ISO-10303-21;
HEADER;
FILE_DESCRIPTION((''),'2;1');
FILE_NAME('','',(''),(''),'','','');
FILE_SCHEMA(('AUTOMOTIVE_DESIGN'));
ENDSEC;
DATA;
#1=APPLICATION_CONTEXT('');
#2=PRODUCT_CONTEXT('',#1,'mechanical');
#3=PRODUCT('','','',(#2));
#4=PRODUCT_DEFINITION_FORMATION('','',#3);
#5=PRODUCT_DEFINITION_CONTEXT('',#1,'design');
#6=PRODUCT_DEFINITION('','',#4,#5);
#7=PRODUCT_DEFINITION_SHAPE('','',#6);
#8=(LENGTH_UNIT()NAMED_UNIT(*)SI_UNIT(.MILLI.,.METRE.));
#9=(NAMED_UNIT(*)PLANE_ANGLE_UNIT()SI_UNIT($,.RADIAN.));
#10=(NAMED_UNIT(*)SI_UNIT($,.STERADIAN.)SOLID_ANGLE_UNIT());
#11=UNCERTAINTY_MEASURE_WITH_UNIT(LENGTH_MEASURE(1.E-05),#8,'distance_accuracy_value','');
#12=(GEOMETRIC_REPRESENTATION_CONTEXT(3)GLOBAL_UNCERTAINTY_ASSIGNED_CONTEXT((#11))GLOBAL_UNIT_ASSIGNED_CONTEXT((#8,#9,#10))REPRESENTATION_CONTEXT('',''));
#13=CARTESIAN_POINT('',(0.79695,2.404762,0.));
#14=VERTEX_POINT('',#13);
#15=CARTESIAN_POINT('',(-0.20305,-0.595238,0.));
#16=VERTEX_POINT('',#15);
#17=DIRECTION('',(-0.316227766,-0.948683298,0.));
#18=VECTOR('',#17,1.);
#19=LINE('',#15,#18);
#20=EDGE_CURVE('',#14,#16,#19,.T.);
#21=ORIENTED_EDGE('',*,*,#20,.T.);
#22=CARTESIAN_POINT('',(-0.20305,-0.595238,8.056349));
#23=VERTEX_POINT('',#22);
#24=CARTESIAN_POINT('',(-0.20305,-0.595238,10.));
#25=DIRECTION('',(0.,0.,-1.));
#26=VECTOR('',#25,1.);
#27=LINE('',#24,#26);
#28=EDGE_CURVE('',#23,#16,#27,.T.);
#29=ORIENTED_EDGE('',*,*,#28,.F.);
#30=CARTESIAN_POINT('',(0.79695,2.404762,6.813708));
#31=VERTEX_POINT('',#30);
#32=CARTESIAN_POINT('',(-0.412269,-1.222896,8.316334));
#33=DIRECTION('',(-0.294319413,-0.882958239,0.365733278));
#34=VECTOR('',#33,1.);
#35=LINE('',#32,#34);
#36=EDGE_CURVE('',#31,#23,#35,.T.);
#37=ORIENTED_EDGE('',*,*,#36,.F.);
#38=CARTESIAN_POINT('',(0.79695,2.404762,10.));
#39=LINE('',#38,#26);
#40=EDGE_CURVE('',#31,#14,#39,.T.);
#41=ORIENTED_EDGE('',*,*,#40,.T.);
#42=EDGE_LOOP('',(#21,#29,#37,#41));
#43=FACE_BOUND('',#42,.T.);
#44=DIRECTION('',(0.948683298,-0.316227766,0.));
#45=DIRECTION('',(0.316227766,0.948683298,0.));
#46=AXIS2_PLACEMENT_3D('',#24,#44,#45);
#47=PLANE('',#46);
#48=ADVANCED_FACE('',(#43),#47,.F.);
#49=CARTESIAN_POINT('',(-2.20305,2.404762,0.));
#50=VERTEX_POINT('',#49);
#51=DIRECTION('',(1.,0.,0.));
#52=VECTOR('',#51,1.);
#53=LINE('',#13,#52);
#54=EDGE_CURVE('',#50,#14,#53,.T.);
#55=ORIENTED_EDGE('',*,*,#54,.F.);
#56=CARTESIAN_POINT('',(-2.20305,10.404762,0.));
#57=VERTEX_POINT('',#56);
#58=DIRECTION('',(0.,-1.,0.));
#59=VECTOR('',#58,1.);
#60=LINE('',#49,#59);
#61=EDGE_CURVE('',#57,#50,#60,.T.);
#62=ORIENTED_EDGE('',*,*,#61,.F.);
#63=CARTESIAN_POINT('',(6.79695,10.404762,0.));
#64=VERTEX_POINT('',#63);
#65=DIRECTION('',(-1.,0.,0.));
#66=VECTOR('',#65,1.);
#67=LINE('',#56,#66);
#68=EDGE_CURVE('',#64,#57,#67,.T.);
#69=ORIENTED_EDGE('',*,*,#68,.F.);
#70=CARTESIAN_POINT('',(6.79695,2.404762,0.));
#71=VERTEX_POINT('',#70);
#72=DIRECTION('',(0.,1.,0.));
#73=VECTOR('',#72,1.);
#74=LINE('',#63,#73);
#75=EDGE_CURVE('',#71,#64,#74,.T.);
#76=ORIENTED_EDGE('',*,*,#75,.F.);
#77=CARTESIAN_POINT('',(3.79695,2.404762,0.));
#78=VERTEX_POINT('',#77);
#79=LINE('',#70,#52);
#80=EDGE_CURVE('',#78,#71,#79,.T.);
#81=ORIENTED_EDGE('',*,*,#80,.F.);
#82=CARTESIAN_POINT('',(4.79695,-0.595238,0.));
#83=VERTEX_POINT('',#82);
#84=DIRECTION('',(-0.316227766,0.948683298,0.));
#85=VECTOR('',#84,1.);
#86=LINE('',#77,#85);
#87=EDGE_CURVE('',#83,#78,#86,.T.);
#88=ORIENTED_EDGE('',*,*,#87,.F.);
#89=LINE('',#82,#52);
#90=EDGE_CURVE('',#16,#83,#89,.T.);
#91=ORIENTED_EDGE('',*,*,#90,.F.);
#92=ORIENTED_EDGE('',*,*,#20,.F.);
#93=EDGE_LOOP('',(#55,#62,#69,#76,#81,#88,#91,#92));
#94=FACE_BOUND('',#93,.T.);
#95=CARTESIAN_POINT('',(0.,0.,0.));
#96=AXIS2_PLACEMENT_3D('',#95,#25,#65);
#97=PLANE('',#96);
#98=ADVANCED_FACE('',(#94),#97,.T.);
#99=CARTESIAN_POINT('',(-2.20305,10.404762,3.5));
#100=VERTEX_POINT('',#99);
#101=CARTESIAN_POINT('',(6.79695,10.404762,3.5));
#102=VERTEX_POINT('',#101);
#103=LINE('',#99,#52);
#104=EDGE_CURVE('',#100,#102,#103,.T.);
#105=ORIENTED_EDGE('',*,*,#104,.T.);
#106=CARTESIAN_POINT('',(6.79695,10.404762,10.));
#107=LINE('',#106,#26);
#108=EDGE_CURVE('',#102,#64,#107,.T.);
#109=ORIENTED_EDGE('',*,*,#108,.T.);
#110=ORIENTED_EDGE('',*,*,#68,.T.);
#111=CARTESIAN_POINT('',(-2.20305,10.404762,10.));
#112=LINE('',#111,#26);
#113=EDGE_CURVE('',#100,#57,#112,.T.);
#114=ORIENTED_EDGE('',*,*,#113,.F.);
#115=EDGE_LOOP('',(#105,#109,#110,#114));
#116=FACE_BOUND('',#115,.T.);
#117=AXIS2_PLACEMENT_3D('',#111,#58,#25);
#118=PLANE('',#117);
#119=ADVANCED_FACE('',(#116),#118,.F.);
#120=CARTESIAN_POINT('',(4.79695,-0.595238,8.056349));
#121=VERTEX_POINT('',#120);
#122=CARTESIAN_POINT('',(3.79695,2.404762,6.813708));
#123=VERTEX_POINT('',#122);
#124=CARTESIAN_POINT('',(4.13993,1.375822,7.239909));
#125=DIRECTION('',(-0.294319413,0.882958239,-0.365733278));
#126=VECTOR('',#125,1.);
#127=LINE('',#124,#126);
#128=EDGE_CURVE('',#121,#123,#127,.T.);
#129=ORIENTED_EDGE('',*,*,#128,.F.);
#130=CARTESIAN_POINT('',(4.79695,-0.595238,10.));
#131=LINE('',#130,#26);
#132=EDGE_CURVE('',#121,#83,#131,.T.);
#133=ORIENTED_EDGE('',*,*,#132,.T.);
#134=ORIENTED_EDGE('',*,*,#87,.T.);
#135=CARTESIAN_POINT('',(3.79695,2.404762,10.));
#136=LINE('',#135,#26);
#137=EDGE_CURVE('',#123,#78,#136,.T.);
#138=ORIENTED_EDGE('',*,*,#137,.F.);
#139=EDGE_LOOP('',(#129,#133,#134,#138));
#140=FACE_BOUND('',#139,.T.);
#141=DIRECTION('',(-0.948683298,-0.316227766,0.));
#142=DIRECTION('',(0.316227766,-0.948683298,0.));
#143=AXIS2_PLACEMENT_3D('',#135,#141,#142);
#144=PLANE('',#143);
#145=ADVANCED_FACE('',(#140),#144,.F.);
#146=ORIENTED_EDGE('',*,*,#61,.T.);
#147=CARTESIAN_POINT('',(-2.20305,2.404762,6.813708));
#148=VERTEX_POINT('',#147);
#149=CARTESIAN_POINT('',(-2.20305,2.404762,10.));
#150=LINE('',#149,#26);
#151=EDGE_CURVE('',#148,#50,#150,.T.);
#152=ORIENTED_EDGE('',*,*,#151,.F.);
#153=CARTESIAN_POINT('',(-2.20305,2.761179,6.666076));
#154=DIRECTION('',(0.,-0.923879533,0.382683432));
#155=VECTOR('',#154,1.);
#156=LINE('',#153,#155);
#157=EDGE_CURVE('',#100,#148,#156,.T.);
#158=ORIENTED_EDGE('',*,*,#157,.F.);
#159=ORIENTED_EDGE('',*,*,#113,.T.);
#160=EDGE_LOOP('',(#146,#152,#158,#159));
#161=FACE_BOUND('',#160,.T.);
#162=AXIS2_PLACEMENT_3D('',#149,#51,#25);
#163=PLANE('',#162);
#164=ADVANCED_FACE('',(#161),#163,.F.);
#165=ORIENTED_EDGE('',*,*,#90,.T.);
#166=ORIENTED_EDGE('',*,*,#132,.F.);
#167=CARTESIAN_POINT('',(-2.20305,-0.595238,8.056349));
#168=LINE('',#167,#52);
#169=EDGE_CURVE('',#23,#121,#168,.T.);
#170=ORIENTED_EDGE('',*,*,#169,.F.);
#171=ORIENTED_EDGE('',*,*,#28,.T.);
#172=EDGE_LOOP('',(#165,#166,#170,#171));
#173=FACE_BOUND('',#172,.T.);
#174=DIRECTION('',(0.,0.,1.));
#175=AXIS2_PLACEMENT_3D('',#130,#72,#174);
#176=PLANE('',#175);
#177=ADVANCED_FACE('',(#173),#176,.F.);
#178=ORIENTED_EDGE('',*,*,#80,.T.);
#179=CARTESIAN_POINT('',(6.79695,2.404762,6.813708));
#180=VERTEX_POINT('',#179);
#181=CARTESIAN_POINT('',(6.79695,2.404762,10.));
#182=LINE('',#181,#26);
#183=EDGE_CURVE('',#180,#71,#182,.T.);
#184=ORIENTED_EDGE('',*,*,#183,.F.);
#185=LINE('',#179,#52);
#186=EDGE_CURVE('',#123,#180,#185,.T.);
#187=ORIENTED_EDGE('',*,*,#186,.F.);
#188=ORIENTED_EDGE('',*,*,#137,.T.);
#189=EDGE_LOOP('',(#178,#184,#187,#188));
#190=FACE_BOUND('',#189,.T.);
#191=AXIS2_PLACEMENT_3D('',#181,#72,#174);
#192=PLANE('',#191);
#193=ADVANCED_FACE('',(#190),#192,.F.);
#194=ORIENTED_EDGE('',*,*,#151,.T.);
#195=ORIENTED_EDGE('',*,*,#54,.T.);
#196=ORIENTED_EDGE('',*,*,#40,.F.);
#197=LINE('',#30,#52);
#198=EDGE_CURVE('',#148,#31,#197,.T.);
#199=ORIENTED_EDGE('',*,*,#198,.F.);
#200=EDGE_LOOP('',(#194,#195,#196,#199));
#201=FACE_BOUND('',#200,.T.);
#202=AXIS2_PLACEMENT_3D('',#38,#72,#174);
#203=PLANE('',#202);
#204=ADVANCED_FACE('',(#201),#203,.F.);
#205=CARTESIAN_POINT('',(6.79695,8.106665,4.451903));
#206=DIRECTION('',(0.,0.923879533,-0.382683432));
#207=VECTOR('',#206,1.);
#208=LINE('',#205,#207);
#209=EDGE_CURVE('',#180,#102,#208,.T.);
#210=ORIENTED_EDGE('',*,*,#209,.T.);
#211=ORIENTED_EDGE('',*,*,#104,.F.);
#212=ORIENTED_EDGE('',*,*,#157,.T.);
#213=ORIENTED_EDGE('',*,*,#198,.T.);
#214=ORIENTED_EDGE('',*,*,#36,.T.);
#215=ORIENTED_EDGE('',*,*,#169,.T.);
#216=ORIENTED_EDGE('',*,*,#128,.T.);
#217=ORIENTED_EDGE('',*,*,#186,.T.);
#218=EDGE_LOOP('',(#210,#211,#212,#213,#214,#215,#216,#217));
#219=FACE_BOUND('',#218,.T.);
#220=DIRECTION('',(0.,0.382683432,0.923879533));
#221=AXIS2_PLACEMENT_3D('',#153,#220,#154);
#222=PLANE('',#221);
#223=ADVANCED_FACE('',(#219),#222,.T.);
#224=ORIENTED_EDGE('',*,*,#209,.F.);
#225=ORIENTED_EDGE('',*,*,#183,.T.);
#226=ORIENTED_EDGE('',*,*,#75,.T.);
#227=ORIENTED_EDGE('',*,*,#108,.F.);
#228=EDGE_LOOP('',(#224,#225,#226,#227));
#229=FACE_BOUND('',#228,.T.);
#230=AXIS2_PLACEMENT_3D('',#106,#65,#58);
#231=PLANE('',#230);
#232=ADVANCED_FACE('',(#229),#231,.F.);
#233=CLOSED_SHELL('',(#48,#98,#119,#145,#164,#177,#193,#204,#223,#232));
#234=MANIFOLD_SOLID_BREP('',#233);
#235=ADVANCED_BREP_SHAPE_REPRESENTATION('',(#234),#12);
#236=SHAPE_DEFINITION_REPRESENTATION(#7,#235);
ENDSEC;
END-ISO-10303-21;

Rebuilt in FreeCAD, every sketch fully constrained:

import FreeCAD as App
import Part
import Sketcher
from FreeCAD import Vector
Q = App.Units.Quantity

doc = App.newDocument("Part")
body = doc.addObject("PartDesign::Body", "Body")

# Sketch on XY plane
sketch1 = body.newObject("Sketcher::SketchObject", "Sketch")
sketch1.AttachmentSupport = (doc.getObject("XY_Plane"), [""])
sketch1.MapMode = "FlatFace"
sketch1.addGeometry(Part.LineSegment(Vector(-2.20305, 2.404762, 0), Vector(0.79695, 2.404762, 0)), False)
sketch1.addGeometry(Part.LineSegment(Vector(0.79695, 2.404762, 0), Vector(-0.20305, -0.595238, 0)), False)
sketch1.addGeometry(Part.LineSegment(Vector(-0.20305, -0.595238, 0), Vector(4.79695, -0.595238, 0)), False)
sketch1.addGeometry(Part.LineSegment(Vector(4.79695, -0.595238, 0), Vector(3.79695, 2.404762, 0)), False)
sketch1.addGeometry(Part.LineSegment(Vector(3.79695, 2.404762, 0), Vector(6.79695, 2.404762, 0)), False)
sketch1.addGeometry(Part.LineSegment(Vector(6.79695, 2.404762, 0), Vector(6.79695, 10.404762, 0)), False)
sketch1.addGeometry(Part.LineSegment(Vector(6.79695, 10.404762, 0), Vector(-2.20305, 10.404762, 0)), False)
sketch1.addGeometry(Part.LineSegment(Vector(-2.20305, 10.404762, 0), Vector(-2.20305, 2.404762, 0)), False)
sketch1.addConstraint(Sketcher.Constraint("Coincident", 0, 2, 1, 1))
sketch1.addConstraint(Sketcher.Constraint("Coincident", 1, 2, 2, 1))
sketch1.addConstraint(Sketcher.Constraint("Coincident", 2, 2, 3, 1))
sketch1.addConstraint(Sketcher.Constraint("Coincident", 3, 2, 4, 1))
sketch1.addConstraint(Sketcher.Constraint("Coincident", 4, 2, 5, 1))
sketch1.addConstraint(Sketcher.Constraint("Coincident", 5, 2, 6, 1))
sketch1.addConstraint(Sketcher.Constraint("Coincident", 6, 2, 7, 1))
sketch1.addConstraint(Sketcher.Constraint("Coincident", 7, 2, 0, 1))
sketch1.addConstraint(Sketcher.Constraint("Horizontal", 0))
sketch1.addConstraint(Sketcher.Constraint("Horizontal", 2))
sketch1.addConstraint(Sketcher.Constraint("Horizontal", 4))
sketch1.addConstraint(Sketcher.Constraint("Vertical", 5))
sketch1.addConstraint(Sketcher.Constraint("Horizontal", 6))
sketch1.addConstraint(Sketcher.Constraint("Vertical", 7))
sketch1.addConstraint(Sketcher.Constraint("Horizontal", 0, 2, 3, 2))
sketch1.addConstraint(Sketcher.Constraint("Equal", 0, 4))
sketch1.addConstraint(Sketcher.Constraint("Equal", 1, 3))
sketch1.addConstraint(Sketcher.Constraint("DistanceX", 0, 1, 0, 2, 3.0))
sketch1.addConstraint(Sketcher.Constraint("DistanceX", 2, 1, 2, 2, 5.0))
sketch1.addConstraint(Sketcher.Constraint("DistanceX", 6, 2, 6, 1, 9.0))
sketch1.addConstraint(Sketcher.Constraint("DistanceY", 5, 1, 5, 2, 8.0))
sketch1.addConstraint(Sketcher.Constraint("DistanceY", 1, 2, 0, 2, 3.0))
sketch1.addConstraint(Sketcher.Constraint("DistanceX", -1, 1, 0, 2, 0.79695))
sketch1.addConstraint(Sketcher.Constraint("DistanceY", -1, 1, 0, 2, 2.404762))
pad1 = body.newObject("PartDesign::Pad", "Pad")
pad1.Profile = sketch1
pad1.Length = 10

# Sketch on YZ plane
sketch2 = body.newObject("Sketcher::SketchObject", "Sketch001")
sketch2.AttachmentSupport = (doc.getObject("YZ_Plane"), [""])
sketch2.MapMode = "FlatFace"
sketch2.AttachmentOffset = App.Placement(Vector(0, 0, 6.79695), App.Rotation())
sketch2.addGeometry(Part.LineSegment(Vector(10.404762, 3.5, 0), Vector(10.404762, 10, 0)), False)
sketch2.addGeometry(Part.LineSegment(Vector(10.404762, 10, 0), Vector(-0.595238, 10, 0)), False)
sketch2.addGeometry(Part.LineSegment(Vector(-0.595238, 10, 0), Vector(-0.595238, 8.056349, 0)), False)
sketch2.addGeometry(Part.LineSegment(Vector(-0.595238, 8.056349, 0), Vector(2.404762, 6.813708, 0)), False)
sketch2.addGeometry(Part.LineSegment(Vector(2.404762, 6.813708, 0), Vector(10.404762, 3.5, 0)), False)
sketch2.addConstraint(Sketcher.Constraint("Coincident", 0, 2, 1, 1))
sketch2.addConstraint(Sketcher.Constraint("Coincident", 1, 2, 2, 1))
sketch2.addConstraint(Sketcher.Constraint("Coincident", 2, 2, 3, 1))
sketch2.addConstraint(Sketcher.Constraint("Coincident", 3, 2, 4, 1))
sketch2.addConstraint(Sketcher.Constraint("Coincident", 4, 2, 0, 1))
sketch2.addConstraint(Sketcher.Constraint("Vertical", 0))
sketch2.addConstraint(Sketcher.Constraint("Horizontal", 1))
sketch2.addConstraint(Sketcher.Constraint("Vertical", 2))
sketch2.addConstraint(Sketcher.Constraint("Parallel", 3, 4))
sketch2.addConstraint(Sketcher.Constraint("DistanceX", 1, 2, 1, 1, 11.0))
sketch2.addConstraint(Sketcher.Constraint("DistanceY", 0, 1, 0, 2, 6.5))
sketch2.addConstraint(Sketcher.Constraint("DistanceY", -1, 1, 0, 2, 10.0))
sketch2.addConstraint(Sketcher.Constraint("Angle", 3, Q("-22.5 deg")))
sketch2.addConstraint(Sketcher.Constraint("DistanceX", 2, 2, 3, 2, 3.0))
sketch2.addConstraint(Sketcher.Constraint("DistanceX", -1, 1, 0, 2, 10.404762))
pocket1 = body.newObject("PartDesign::Pocket", "Pocket")
pocket1.Profile = sketch2
pocket1.Type = "ThroughAll"
pocket1.Midplane = True

doc.recompute()
